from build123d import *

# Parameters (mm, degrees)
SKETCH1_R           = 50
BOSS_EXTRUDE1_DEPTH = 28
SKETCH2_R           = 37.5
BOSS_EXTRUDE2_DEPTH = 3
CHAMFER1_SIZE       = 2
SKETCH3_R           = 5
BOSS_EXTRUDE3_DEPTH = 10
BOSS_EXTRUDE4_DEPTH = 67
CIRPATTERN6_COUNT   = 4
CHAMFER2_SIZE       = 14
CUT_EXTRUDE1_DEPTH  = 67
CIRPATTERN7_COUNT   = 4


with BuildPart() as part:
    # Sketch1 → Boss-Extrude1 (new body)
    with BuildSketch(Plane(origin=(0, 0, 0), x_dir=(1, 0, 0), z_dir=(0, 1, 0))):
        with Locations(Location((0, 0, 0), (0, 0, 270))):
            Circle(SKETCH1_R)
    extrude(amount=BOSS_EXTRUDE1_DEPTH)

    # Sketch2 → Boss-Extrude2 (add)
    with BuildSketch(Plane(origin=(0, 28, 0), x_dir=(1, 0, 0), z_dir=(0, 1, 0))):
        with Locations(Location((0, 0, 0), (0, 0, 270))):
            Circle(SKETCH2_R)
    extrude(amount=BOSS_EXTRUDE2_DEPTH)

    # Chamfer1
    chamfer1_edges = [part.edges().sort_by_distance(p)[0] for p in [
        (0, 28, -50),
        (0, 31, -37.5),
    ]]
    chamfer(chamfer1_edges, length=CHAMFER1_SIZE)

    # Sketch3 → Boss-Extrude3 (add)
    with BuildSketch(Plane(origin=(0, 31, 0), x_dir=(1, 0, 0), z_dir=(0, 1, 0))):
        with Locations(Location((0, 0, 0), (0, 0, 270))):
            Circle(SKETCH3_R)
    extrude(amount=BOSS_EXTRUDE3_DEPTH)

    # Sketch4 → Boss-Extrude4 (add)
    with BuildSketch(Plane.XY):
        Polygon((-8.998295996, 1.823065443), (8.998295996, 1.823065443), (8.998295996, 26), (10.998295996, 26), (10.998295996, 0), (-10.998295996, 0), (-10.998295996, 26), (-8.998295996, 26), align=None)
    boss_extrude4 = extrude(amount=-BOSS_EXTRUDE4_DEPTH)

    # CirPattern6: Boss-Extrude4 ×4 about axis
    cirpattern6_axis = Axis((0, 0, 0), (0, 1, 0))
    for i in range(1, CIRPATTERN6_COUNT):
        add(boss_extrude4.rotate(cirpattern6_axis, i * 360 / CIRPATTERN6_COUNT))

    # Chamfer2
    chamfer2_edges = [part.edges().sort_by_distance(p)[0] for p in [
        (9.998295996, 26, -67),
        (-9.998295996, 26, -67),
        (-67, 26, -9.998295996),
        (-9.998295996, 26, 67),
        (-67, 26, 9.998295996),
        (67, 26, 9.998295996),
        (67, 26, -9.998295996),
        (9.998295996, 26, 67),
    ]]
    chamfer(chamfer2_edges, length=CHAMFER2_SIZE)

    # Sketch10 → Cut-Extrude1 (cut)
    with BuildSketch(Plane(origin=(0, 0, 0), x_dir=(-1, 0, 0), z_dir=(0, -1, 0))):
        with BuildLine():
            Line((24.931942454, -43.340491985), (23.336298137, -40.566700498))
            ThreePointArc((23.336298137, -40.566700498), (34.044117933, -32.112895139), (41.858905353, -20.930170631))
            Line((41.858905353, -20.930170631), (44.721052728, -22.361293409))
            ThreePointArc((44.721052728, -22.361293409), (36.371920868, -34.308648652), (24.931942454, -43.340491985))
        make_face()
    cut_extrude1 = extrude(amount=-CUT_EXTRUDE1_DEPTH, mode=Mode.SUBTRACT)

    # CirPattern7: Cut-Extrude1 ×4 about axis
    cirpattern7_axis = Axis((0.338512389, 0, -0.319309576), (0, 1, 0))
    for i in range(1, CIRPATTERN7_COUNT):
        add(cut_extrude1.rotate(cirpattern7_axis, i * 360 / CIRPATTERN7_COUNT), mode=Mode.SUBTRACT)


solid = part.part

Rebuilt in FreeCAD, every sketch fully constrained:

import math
import FreeCAD as App
import Part
import Sketcher
from FreeCAD import Vector
Q = App.Units.Quantity


def edges_at(feature, points):
    """Names of the edges that pass closest to the given points."""
    edges = feature.Shape.Edges
    near = lambda p: min(range(len(edges)), key=lambda i: edges[i].distToShape(Part.Vertex(*p))[0])
    return sorted({f"Edge{near(p) + 1}" for p in points})


def add_polygon(sketch, points):
    """Adds a closed chain of lines whose ends are joined by coincident constraints."""
    first, n = sketch.GeometryCount, len(points)
    for a, b in zip(points, points[1:] + points[:1]):
        sketch.addGeometry(Part.LineSegment(App.Vector(*a, 0), App.Vector(*b, 0)), False)
    for i in range(n):
        sketch.addConstraint(Sketcher.Constraint("Coincident", first + i, 2, first + (i + 1) % n, 1))

doc = App.newDocument("Part")
body = doc.addObject("PartDesign::Body", "Body")

# Sketch on XZ plane
sketch1 = doc.addObject("Sketcher::SketchObject", "Sketch")
body.addObject(sketch1)
sketch1.AttachmentSupport = (doc.XZ_Plane, [""])
sketch1.MapMode = "FlatFace"
sketch1.addGeometry(Part.Circle(Vector(0, 0, 0), Vector(0, 0, 1), 50), False)
sketch1.addConstraint([
    Sketcher.Constraint("Coincident", 0, 3, -1, 1),
    Sketcher.Constraint("Diameter", 0, Q("100 mm")),
])
pad1 = doc.addObject("PartDesign::Pad", "Pad")
body.addObject(pad1)
pad1.Profile = sketch1
pad1.Length = 28
pad1.Reversed = True

# Sketch on XZ plane
sketch2 = doc.addObject("Sketcher::SketchObject", "Sketch001")
body.addObject(sketch2)
sketch2.AttachmentSupport = (doc.XZ_Plane, [""])
sketch2.MapMode = "FlatFace"
sketch2.AttachmentOffset = App.Placement(Vector(0, 0, -28), App.Rotation())
sketch2.addGeometry(Part.Circle(Vector(0, 0, 0), Vector(0, 0, 1), 37.5), False)
sketch2.addConstraint([
    Sketcher.Constraint("Coincident", 0, 3, -1, 1),
    Sketcher.Constraint("Diameter", 0, Q("75 mm")),
])
pad2 = doc.addObject("PartDesign::Pad", "Pad001")
body.addObject(pad2)
pad2.Profile = sketch2
pad2.Length = 3
pad2.Reversed = True
doc.recompute()

chamfer = doc.addObject("PartDesign::Chamfer", "Chamfer")
body.addObject(chamfer)
chamfer.Base = (pad2, edges_at(pad2, [(0, 28, -50), (0, 31, -37.5)]))
chamfer.Size = 2

# Sketch on XZ plane
sketch3 = doc.addObject("Sketcher::SketchObject", "Sketch002")
body.addObject(sketch3)
sketch3.AttachmentSupport = (doc.XZ_Plane, [""])
sketch3.MapMode = "FlatFace"
sketch3.AttachmentOffset = App.Placement(Vector(0, 0, -31), App.Rotation())
sketch3.addGeometry(Part.Circle(Vector(0, 0, 0), Vector(0, 0, 1), 5), False)
sketch3.addConstraint([
    Sketcher.Constraint("Coincident", 0, 3, -1, 1),
    Sketcher.Constraint("Diameter", 0, Q("10 mm")),
])
pad3 = doc.addObject("PartDesign::Pad", "Pad002")
body.addObject(pad3)
pad3.Profile = sketch3
pad3.Length = 10
pad3.Reversed = True

# Sketch on XY plane
sketch4 = doc.addObject("Sketcher::SketchObject", "Sketch003")
body.addObject(sketch4)
sketch4.AttachmentSupport = (doc.XY_Plane, [""])
sketch4.MapMode = "FlatFace"
add_polygon(sketch4, [(8.998296, 1.823065), (-8.998296, 1.823065), (-8.998296, 26), (-10.998296, 26), (-10.998296, 0), (10.998296, 0), (10.998296, 26), (8.998296, 26)])  # lines 0-7
sketch4.addConstraint([
    Sketcher.Constraint("Horizontal", 0),
    Sketcher.Constraint("Vertical", 1),
    Sketcher.Constraint("Horizontal", 2),
    Sketcher.Constraint("Vertical", 3),
    Sketcher.Constraint("Horizontal", 4),
    Sketcher.Constraint("Vertical", 5),
    Sketcher.Constraint("Horizontal", 6),
    Sketcher.Constraint("Vertical", 7),
    Sketcher.Constraint("Symmetric", 3, 2, 4, 2, -1, 1),
    Sketcher.Constraint("Symmetric", 1, 2, 6, 2, -2),
    Sketcher.Constraint("DistanceX", 2, 2, 2, 1, Q("2 mm")),
    Sketcher.Constraint("DistanceY", 3, 2, 3, 1, Q("26 mm")),
    Sketcher.Constraint("DistanceX", 0, 2, 0, 1, Q("17.996592 mm")),
    Sketcher.Constraint("DistanceY", 1, 1, 1, 2, Q("24.176935 mm")),
])
pad4 = doc.addObject("PartDesign::Pad", "Pad003")
body.addObject(pad4)
pad4.Profile = sketch4
pad4.Length = 67
pad4.Reversed = True
doc.recompute()

polarpattern = doc.addObject("PartDesign::PolarPattern", "PolarPattern")
body.addObject(polarpattern)
polarpattern.Originals = [pad4]
polarpattern.Axis = (doc.Y_Axis, [""])
polarpattern.Angle = 360
polarpattern.Occurrences = 4
body.Tip = polarpattern
doc.recompute()

chamfer2 = doc.addObject("PartDesign::Chamfer", "Chamfer001")
body.addObject(chamfer2)
chamfer2.Base = (polarpattern, edges_at(polarpattern, [
    (9.998, 26, -67),
    (-9.998, 26, -67),
    (-67, 26, -9.998),
    (-9.998, 26, 67),
    (-67, 26, 9.998),
    (67, 26, 9.998),
    (67, 26, -9.998),
    (9.998, 26, 67),
]))
chamfer2.Size = 14

# Sketch on XZ plane
sketch5 = doc.addObject("Sketcher::SketchObject", "Sketch004")
body.addObject(sketch5)
sketch5.AttachmentSupport = (doc.XZ_Plane, [""])
sketch5.MapMode = "FlatFace"
sketch5.addGeometry([
    Part.LineSegment(Vector(-23.336298, 40.5667, 0), Vector(-24.931942, 43.340492, 0)),
    Part.ArcOfCircle(Part.Circle(Vector(0, 0, 0), Vector(0, 0, 1), 50), math.radians(119.909988), math.radians(153.434163)),
    Part.LineSegment(Vector(-44.721053, 22.361293, 0), Vector(-41.858905, 20.930171, 0)),
    Part.ArcOfCircle(Part.Circle(Vector(0, 0, 0), Vector(0, 0, 1), 46.8), math.radians(119.909988), math.radians(153.434163)),
], False)
sketch5.addConstraint([
    Sketcher.Constraint("Coincident", 0, 2, 1, 1),
    Sketcher.Constraint("Coincident", 1, 2, 2, 1),
    Sketcher.Constraint("Coincident", 2, 2, 3, 2),
    Sketcher.Constraint("Coincident", 3, 1, 0, 1),
    Sketcher.Constraint("Coincident", 1, 3, -1, 1),
    Sketcher.Constraint("Coincident", 3, 3, -1, 1),
    Sketcher.Constraint("Radius", 1, Q("50 mm")),
    Sketcher.Constraint("Radius", 3, Q("46.8 mm")),
    Sketcher.Constraint("Angle", 0, Q("119.909988 deg")),
    Sketcher.Constraint("DistanceX", 3, 1, -1, 1, Q("23.336298 mm")),
    Sketcher.Constraint("DistanceY", 1, 2, 0, 2, Q("20.979199 mm")),
    Sketcher.Constraint("DistanceY", -1, 1, 2, 2, Q("20.930171 mm")),
])
pocket1 = doc.addObject("PartDesign::Pocket", "Pocket")
body.addObject(pocket1)
pocket1.Profile = sketch5
pocket1.Length = 67
doc.recompute()

datumline = doc.addObject("PartDesign::Line", "DatumLine")
body.addObject(datumline)
datumline.Placement = App.Placement(Vector(0.338512, 0, -0.31931), App.Rotation(Vector(0, 0, 1), Vector(0, 1, 0)))
polarpattern2 = doc.addObject("PartDesign::PolarPattern", "PolarPattern001")
body.addObject(polarpattern2)
polarpattern2.Originals = [pocket1]
polarpattern2.Axis = (datumline, [""])
polarpattern2.Angle = 360
polarpattern2.Occurrences = 4
body.Tip = polarpattern2

doc.recompute()
